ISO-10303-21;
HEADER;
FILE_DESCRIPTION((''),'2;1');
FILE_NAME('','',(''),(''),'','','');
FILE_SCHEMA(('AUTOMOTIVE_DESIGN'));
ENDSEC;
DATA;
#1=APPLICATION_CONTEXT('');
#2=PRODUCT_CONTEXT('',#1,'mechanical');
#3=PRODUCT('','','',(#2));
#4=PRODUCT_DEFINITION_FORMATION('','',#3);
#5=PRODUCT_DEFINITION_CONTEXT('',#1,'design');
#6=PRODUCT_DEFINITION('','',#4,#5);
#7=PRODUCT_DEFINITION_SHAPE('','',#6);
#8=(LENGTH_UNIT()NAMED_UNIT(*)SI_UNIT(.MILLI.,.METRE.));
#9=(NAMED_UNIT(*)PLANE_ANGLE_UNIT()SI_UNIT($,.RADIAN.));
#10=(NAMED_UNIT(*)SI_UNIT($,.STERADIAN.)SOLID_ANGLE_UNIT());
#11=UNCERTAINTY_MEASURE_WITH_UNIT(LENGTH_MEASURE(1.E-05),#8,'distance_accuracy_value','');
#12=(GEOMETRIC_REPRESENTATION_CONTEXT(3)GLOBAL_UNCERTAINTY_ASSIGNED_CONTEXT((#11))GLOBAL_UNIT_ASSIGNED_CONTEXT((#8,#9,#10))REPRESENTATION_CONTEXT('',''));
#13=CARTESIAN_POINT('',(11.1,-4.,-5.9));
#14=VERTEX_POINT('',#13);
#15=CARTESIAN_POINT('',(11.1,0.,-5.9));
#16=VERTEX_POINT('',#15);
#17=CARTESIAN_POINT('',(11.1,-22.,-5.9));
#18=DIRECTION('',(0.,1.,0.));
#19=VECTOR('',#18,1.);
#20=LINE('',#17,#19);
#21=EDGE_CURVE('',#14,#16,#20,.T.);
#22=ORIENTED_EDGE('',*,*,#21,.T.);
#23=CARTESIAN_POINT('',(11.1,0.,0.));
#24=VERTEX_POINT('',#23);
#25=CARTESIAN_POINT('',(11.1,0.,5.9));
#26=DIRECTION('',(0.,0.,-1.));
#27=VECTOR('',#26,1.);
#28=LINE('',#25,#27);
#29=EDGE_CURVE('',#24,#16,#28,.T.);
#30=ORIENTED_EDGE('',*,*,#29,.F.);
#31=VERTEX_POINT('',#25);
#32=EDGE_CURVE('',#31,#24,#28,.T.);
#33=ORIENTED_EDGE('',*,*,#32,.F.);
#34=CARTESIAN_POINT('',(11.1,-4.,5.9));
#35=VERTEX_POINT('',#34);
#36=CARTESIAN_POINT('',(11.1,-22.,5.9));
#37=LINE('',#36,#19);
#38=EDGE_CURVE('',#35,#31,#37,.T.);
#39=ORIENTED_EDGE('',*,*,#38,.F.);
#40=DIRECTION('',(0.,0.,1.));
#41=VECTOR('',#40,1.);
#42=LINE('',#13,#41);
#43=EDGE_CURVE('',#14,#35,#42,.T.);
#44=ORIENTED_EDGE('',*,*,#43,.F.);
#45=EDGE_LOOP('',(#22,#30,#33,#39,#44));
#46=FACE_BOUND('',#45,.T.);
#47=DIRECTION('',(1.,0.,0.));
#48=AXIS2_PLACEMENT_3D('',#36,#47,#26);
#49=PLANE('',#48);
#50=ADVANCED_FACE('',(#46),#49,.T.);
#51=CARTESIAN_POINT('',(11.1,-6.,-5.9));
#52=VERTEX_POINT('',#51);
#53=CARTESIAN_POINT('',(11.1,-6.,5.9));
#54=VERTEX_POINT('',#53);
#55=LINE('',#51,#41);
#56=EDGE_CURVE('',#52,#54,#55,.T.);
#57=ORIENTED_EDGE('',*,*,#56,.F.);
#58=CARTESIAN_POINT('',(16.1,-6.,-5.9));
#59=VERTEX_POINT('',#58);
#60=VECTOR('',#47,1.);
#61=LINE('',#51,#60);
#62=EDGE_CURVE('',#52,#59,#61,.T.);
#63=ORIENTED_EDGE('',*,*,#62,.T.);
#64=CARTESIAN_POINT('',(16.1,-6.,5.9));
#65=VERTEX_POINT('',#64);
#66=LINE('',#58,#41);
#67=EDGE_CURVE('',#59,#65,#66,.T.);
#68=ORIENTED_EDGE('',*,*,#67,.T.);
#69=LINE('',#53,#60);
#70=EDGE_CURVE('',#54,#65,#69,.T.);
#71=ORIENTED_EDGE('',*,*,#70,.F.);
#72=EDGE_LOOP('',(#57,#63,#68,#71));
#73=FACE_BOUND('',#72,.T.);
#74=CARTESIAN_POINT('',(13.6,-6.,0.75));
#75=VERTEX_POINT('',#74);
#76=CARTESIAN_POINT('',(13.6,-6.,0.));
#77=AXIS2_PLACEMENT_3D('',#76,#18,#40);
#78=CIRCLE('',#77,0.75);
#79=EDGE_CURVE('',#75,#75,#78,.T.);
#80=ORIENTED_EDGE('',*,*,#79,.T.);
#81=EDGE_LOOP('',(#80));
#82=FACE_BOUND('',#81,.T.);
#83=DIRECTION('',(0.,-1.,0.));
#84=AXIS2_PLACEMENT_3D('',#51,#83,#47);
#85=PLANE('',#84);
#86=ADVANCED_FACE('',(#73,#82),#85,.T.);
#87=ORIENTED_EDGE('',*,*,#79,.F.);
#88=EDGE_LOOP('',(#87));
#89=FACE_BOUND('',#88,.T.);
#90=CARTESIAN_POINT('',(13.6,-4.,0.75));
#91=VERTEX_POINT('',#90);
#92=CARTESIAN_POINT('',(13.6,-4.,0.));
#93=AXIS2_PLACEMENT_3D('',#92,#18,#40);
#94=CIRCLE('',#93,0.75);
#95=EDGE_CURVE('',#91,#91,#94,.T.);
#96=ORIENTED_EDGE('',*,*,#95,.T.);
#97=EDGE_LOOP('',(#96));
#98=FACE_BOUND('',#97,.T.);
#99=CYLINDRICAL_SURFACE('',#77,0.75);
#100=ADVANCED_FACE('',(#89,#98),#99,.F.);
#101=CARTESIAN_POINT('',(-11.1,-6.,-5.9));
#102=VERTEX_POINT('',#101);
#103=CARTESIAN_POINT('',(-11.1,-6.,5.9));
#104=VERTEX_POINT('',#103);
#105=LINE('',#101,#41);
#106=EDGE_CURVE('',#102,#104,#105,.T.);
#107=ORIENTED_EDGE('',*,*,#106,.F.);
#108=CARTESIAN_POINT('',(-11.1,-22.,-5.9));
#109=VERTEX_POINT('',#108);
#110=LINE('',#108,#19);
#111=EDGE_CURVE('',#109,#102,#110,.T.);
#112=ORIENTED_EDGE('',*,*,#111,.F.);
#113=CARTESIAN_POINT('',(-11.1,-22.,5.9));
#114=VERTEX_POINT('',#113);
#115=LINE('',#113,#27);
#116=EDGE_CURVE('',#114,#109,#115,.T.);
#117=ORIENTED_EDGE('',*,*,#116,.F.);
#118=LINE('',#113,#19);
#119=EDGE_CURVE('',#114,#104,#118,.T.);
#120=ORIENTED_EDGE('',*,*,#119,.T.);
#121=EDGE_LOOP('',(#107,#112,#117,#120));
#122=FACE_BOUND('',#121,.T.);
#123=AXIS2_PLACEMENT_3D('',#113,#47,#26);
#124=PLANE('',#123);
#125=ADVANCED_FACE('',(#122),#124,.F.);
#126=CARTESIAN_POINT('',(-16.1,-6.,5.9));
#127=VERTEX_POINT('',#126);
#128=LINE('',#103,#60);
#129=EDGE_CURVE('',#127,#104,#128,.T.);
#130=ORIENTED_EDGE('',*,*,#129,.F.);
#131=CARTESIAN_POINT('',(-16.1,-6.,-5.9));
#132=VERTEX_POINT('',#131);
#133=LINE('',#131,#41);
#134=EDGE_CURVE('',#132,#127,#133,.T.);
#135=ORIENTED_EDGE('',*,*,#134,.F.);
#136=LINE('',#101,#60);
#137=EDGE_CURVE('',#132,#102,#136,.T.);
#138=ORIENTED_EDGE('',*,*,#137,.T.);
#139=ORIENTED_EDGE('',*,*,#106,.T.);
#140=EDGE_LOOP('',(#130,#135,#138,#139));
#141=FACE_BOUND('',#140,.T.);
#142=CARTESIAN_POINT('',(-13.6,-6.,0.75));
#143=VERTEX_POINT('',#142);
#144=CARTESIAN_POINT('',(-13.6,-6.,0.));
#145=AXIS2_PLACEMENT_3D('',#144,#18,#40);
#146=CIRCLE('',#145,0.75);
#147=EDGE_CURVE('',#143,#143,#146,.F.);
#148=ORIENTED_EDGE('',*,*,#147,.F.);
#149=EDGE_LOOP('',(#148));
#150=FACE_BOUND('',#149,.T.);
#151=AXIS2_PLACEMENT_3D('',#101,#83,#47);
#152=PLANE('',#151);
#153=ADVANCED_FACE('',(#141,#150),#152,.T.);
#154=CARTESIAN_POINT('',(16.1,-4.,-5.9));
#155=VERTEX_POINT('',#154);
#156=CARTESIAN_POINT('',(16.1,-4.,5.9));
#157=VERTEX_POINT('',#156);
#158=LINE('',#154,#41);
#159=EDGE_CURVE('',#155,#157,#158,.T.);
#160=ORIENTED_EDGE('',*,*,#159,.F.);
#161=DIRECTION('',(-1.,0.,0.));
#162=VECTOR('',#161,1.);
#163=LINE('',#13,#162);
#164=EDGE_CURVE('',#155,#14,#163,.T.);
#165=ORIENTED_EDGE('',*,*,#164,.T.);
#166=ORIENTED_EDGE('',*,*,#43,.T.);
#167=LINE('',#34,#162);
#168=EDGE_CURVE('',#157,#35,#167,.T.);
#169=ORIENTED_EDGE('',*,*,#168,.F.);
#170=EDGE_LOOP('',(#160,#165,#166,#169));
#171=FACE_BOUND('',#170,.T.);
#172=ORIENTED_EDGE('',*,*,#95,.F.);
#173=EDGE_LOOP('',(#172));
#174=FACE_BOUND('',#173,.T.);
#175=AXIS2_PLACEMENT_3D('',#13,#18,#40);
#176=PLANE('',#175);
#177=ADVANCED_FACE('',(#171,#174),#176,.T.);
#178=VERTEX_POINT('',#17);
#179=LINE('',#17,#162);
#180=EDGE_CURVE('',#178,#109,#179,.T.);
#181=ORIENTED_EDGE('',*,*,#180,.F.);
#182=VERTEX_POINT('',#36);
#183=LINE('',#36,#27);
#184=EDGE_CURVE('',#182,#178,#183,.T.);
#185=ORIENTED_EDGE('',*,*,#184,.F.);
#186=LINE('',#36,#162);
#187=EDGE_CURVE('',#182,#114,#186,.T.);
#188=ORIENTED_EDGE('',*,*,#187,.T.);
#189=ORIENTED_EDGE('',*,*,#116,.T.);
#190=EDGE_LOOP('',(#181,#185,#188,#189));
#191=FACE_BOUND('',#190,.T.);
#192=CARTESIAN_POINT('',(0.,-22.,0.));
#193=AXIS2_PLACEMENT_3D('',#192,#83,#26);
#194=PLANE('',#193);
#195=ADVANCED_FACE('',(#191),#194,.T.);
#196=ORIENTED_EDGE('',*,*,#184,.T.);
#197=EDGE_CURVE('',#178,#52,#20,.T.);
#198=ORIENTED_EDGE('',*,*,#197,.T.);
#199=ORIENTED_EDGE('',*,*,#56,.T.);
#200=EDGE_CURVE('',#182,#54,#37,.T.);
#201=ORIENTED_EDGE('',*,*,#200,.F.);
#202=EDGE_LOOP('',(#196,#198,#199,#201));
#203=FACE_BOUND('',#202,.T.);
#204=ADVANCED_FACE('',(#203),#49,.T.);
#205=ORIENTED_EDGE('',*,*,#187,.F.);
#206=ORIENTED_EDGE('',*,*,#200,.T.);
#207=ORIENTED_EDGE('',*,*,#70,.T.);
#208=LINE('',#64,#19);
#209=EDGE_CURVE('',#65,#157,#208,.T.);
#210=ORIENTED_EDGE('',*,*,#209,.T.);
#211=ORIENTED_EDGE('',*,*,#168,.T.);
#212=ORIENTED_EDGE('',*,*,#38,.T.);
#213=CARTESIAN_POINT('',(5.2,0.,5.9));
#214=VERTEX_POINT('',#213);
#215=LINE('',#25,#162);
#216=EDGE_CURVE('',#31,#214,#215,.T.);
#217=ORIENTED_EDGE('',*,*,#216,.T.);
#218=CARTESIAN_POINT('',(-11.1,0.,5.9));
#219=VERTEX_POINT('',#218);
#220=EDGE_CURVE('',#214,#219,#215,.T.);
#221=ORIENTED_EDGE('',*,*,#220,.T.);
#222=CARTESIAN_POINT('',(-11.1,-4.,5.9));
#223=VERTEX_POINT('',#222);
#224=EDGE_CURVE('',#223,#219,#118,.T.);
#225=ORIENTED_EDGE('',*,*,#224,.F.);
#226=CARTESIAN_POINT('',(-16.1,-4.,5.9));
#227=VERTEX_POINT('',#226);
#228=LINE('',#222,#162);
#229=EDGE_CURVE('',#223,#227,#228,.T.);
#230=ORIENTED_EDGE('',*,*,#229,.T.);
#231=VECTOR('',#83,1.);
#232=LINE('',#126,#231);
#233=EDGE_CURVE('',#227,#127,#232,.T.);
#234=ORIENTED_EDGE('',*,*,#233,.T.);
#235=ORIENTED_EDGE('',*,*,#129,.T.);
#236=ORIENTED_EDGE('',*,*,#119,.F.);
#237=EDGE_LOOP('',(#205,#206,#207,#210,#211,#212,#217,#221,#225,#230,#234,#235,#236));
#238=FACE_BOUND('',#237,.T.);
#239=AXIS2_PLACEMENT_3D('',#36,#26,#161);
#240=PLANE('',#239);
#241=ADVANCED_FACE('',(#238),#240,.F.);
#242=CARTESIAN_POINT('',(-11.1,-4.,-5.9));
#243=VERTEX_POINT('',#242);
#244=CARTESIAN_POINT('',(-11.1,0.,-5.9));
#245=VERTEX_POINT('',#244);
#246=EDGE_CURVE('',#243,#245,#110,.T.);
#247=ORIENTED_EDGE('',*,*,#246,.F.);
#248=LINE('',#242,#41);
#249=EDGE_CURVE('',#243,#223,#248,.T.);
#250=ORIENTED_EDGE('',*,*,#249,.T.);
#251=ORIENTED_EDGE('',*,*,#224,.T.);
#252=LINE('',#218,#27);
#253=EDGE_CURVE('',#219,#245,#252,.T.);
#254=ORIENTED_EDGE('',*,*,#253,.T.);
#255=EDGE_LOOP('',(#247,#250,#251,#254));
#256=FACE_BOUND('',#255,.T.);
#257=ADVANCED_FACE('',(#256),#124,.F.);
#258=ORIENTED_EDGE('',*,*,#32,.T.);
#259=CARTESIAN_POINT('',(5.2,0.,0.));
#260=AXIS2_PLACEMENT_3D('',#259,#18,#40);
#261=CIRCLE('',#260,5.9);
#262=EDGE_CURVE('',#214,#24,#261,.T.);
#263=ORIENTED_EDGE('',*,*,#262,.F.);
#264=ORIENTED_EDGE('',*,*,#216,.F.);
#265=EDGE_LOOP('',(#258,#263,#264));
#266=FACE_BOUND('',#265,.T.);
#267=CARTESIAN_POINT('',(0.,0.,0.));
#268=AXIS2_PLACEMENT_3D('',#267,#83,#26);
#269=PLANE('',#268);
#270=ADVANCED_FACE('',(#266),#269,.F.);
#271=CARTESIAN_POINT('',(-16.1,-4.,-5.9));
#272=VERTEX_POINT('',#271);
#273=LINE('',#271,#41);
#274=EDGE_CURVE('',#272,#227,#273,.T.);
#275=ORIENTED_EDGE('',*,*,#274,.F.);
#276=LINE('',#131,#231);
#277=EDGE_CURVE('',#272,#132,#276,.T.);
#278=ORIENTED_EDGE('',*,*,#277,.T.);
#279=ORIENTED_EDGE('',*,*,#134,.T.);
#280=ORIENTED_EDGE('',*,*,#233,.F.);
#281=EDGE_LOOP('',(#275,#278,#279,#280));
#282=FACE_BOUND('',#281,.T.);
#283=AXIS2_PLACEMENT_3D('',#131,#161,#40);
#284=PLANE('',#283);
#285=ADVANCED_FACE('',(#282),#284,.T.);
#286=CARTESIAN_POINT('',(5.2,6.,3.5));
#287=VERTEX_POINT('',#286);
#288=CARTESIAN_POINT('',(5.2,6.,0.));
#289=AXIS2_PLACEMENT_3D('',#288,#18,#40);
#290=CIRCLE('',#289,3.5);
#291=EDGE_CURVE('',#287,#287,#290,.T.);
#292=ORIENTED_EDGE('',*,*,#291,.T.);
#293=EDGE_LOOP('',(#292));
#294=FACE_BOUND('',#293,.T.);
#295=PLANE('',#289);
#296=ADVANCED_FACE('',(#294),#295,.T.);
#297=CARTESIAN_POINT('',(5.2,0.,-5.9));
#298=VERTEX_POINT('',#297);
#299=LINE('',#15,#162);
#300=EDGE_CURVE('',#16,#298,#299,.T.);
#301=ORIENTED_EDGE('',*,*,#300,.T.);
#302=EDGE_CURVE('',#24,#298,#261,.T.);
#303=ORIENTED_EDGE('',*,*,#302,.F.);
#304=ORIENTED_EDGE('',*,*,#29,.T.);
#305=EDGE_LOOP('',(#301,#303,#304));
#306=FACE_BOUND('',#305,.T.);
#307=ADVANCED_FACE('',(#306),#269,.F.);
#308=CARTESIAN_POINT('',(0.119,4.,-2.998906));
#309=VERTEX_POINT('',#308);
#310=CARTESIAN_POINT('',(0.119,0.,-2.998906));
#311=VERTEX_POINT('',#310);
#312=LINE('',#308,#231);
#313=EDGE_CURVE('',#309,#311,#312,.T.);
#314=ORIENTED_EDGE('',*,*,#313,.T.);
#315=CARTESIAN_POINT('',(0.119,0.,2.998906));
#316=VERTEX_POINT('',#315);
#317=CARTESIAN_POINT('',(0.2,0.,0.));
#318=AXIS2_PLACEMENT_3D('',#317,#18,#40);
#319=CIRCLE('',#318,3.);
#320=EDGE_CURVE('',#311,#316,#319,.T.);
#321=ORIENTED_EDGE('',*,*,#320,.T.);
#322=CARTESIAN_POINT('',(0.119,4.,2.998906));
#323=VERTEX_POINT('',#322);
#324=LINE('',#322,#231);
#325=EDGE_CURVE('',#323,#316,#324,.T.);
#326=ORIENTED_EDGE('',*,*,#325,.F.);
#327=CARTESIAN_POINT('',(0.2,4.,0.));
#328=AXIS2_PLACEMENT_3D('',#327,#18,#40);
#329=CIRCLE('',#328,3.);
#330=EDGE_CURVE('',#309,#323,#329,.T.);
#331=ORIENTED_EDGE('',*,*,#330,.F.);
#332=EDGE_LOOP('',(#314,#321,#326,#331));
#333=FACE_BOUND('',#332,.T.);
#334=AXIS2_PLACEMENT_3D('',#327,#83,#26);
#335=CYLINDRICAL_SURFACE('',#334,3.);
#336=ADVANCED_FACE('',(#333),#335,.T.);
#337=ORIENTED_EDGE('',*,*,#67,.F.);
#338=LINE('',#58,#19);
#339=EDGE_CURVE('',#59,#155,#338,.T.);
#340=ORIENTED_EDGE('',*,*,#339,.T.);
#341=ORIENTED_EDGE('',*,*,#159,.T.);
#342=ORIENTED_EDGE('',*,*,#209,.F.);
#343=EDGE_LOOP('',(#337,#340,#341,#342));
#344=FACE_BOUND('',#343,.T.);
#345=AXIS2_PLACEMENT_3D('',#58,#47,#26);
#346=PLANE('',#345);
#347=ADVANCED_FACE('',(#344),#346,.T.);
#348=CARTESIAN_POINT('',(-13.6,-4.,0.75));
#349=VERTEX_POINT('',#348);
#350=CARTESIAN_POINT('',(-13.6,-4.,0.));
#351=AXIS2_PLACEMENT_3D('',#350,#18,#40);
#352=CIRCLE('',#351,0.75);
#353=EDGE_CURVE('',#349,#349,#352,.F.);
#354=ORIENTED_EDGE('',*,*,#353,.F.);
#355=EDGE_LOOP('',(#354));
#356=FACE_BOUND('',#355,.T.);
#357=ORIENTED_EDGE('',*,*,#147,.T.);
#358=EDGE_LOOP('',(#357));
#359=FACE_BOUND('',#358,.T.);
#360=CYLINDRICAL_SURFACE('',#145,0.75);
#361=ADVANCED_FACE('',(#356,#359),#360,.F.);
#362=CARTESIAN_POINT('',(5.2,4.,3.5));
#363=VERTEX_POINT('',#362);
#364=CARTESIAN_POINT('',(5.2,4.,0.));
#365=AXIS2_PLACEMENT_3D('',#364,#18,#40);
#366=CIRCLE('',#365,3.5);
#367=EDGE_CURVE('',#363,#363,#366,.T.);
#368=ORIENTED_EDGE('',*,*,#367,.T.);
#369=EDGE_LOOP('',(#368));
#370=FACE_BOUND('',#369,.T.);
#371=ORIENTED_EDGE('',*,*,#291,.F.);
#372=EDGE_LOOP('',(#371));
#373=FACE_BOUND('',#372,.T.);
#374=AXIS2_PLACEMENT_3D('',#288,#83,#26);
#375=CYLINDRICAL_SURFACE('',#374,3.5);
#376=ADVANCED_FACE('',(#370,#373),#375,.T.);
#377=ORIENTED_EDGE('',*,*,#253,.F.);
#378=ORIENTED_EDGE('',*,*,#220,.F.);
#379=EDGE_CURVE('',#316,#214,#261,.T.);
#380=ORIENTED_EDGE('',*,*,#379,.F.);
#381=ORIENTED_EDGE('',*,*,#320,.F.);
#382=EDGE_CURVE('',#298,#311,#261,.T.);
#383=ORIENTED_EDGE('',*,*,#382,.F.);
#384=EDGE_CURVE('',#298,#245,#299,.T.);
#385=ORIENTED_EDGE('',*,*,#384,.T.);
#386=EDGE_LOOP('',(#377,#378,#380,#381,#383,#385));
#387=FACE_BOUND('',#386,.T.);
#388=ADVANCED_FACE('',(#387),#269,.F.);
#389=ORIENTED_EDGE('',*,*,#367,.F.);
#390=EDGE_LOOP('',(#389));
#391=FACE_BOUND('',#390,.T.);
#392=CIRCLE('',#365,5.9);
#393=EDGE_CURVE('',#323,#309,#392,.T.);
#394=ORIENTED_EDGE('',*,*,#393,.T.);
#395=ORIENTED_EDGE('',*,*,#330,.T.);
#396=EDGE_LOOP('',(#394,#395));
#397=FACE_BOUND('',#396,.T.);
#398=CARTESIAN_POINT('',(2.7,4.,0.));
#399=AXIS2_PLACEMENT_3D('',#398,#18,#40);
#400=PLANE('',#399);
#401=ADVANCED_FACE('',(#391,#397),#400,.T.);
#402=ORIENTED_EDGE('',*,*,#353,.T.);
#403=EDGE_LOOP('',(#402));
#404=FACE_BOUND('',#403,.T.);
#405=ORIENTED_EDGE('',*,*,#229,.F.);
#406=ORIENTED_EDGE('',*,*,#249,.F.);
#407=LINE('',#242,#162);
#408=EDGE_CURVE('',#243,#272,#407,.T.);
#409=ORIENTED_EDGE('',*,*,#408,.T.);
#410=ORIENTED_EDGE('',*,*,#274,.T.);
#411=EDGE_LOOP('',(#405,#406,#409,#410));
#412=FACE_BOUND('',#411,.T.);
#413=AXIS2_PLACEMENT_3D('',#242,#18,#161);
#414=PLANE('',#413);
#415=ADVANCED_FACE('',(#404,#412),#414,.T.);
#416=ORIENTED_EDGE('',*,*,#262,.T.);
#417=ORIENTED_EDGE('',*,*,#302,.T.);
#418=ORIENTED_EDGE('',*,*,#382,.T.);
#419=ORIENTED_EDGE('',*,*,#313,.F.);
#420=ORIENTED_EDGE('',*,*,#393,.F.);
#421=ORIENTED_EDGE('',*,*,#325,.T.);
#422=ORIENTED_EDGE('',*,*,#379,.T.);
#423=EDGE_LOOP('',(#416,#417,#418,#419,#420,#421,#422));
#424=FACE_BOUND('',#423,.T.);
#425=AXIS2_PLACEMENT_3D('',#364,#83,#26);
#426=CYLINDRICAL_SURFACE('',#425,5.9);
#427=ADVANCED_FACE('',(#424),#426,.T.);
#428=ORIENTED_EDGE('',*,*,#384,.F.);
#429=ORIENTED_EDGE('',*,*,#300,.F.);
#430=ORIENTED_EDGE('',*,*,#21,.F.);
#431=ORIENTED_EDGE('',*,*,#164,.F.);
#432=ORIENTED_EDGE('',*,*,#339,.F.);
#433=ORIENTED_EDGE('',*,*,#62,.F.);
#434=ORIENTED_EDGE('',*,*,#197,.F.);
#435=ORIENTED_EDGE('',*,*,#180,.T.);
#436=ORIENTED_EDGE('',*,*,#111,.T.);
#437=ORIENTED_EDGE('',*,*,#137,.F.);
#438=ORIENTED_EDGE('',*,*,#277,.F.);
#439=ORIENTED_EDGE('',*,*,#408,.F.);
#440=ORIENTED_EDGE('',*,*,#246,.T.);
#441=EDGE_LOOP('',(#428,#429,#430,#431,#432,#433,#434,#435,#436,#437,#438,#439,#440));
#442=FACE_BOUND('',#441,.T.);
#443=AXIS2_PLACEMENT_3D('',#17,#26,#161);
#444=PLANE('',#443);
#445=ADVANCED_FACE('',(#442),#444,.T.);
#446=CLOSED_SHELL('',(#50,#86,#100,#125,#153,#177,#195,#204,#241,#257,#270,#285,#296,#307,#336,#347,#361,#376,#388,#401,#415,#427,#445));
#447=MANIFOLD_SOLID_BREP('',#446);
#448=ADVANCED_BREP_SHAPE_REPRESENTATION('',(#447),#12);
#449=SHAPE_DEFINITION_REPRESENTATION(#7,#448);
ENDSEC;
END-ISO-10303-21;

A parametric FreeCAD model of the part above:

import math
import FreeCAD as App
import Part
import Sketcher
from FreeCAD import Vector
Q = App.Units.Quantity


def add_polygon(sketch, points):
    """Adds a closed chain of lines whose ends are joined by coincident constraints."""
    first, n = sketch.GeometryCount, len(points)
    for a, b in zip(points, points[1:] + points[:1]):
        sketch.addGeometry(Part.LineSegment(App.Vector(*a, 0), App.Vector(*b, 0)), False)
    for i in range(n):
        sketch.addConstraint(Sketcher.Constraint("Coincident", first + i, 2, first + (i + 1) % n, 1))

doc = App.newDocument("Part")
body = doc.addObject("PartDesign::Body", "Body")

# Sketch on XZ plane
sketch1 = doc.addObject("Sketcher::SketchObject", "Sketch")
body.addObject(sketch1)
sketch1.AttachmentSupport = (doc.XZ_Plane, [""])
sketch1.MapMode = "FlatFace"
add_polygon(sketch1, [(-11, -6), (-11, 6), (11, 6), (11, -6)])  # lines 0-3
sketch1.addConstraint(Sketcher.Constraint("Vertical", 0))
sketch1.addConstraint(Sketcher.Constraint("Horizontal", 1))
sketch1.addConstraint(Sketcher.Constraint("Vertical", 2))
sketch1.addConstraint(Sketcher.Constraint("Horizontal", 3))
sketch1.addConstraint(Sketcher.Constraint("Symmetric", 0, 2, 2, 2, -1, 1))
sketch1.addConstraint(Sketcher.Constraint("DistanceX", 1, 1, 1, 2, Q("22.2 mm")))
sketch1.addConstraint(Sketcher.Constraint("DistanceY", 0, 1, 0, 2, Q("11.8 mm")))
pad1 = doc.addObject("PartDesign::Pad", "Pad")
body.addObject(pad1)
pad1.Profile = sketch1
pad1.Length = 22

# Sketch on XY plane
sketch2 = doc.addObject("Sketcher::SketchObject", "Sketch001")
body.addObject(sketch2)
sketch2.AttachmentSupport = (doc.XY_Plane, [""])
sketch2.MapMode = "FlatFace"
sketch2.AttachmentOffset = App.Placement(Vector(0, 0, 5.9), App.Rotation())
add_polygon(sketch2, [(11.1, -4), (11.1, -6), (16.1, -6), (16.1, -4)])  # lines 0-3
add_polygon(sketch2, [(-16.1, -4), (-16.1, -6), (-11.1, -6), (-11.1, -4)])  # lines 4-7
sketch2.addConstraint(Sketcher.Constraint("Vertical", 0))
sketch2.addConstraint(Sketcher.Constraint("Horizontal", 1))
sketch2.addConstraint(Sketcher.Constraint("Vertical", 2))
sketch2.addConstraint(Sketcher.Constraint("Horizontal", 3))
sketch2.addConstraint(Sketcher.Constraint("Vertical", 4))
sketch2.addConstraint(Sketcher.Constraint("Horizontal", 5))
sketch2.addConstraint(Sketcher.Constraint("Vertical", 6))
sketch2.addConstraint(Sketcher.Constraint("Horizontal", 7))
sketch2.addConstraint(Sketcher.Constraint("Symmetric", 1, 2, 4, 2, -2))
sketch2.addConstraint(Sketcher.Constraint("Symmetric", 3, 2, 6, 2, -2))
sketch2.addConstraint(Sketcher.Constraint("DistanceX", 1, 1, 1, 2, Q("5 mm")))
sketch2.addConstraint(Sketcher.Constraint("DistanceY", 0, 2, 0, 1, Q("2 mm")))
sketch2.addConstraint(Sketcher.Constraint("DistanceY", 0, 2, -1, 1, Q("6 mm")))
sketch2.addConstraint(Sketcher.Constraint("DistanceX", -1, 1, 0, 2, Q("11.1 mm")))
pad2 = doc.addObject("PartDesign::Pad", "Pad001")
body.addObject(pad2)
pad2.Profile = sketch2
pad2.Length = 11.8
pad2.Reversed = True

# Sketch on XZ plane
sketch3 = doc.addObject("Sketcher::SketchObject", "Sketch002")
body.addObject(sketch3)
sketch3.AttachmentSupport = (doc.XZ_Plane, [""])
sketch3.MapMode = "FlatFace"
sketch3.addGeometry(Part.ArcOfCircle(Part.Circle(Vector(5.2, 0, 0), Vector(0, 0, 1), 5.9), math.radians(-149), math.radians(149)), False)
sketch3.addGeometry(Part.ArcOfCircle(Part.Circle(Vector(0.2, 0, 0), Vector(0, 0, 1), 3), math.radians(92), math.radians(268)), False)
sketch3.addConstraint(Sketcher.Constraint("Coincident", 0, 1, 1, 2))
sketch3.addConstraint(Sketcher.Constraint("Coincident", 1, 1, 0, 2))
sketch3.addConstraint(Sketcher.Constraint("Symmetric", 0, 1, 1, 1, -1))
sketch3.addConstraint(Sketcher.Constraint("Radius", 1, Q("3 mm")))
sketch3.addConstraint(Sketcher.Constraint("Radius", 0, Q("5.9 mm")))
sketch3.addConstraint(Sketcher.Constraint("DistanceX", 1, 3, 0, 3, Q("5 mm")))
sketch3.addConstraint(Sketcher.Constraint("DistanceX", -1, 1, 0, 3, Q("5.2 mm")))
pad3 = doc.addObject("PartDesign::Pad", "Pad002")
body.addObject(pad3)
pad3.Profile = sketch3
pad3.Length = 4
pad3.Reversed = True

# Sketch on XZ plane
sketch4 = doc.addObject("Sketcher::SketchObject", "Sketch003")
body.addObject(sketch4)
sketch4.AttachmentSupport = (doc.XZ_Plane, [""])
sketch4.MapMode = "FlatFace"
sketch4.AttachmentOffset = App.Placement(Vector(0, 0, -4), App.Rotation())
sketch4.addGeometry(Part.Circle(Vector(5.2, 0, 0), Vector(0, 0, 1), 3.5), False)
sketch4.addConstraint(Sketcher.Constraint("PointOnObject", 0, 3, -1))
sketch4.addConstraint(Sketcher.Constraint("Diameter", 0, Q("7 mm")))
sketch4.addConstraint(Sketcher.Constraint("DistanceX", -1, 1, 0, 3, Q("5.2 mm")))
pad4 = doc.addObject("PartDesign::Pad", "Pad003")
body.addObject(pad4)
pad4.Profile = sketch4
pad4.Length = 2
pad4.Reversed = True

# Sketch on XZ plane
sketch5 = doc.addObject("Sketcher::SketchObject", "Sketch004")
body.addObject(sketch5)
sketch5.AttachmentSupport = (doc.XZ_Plane, [""])
sketch5.MapMode = "FlatFace"
sketch5.AttachmentOffset = App.Placement(Vector(0, 0, 4), App.Rotation())
sketch5.addGeometry(Part.Circle(Vector(-13.6, 0, 0), Vector(0, 0, 1), 0.8), False)
sketch5.addGeometry(Part.Circle(Vector(13.6, 0, 0), Vector(0, 0, 1), 0.8), False)
sketch5.addConstraint(Sketcher.Constraint("Equal", 0, 1))
sketch5.addConstraint(Sketcher.Constraint("Symmetric", 0, 3, 1, 3, -1, 1))
sketch5.addConstraint(Sketcher.Constraint("PointOnObject", 0, 3, -1))
sketch5.addConstraint(Sketcher.Constraint("Diameter", 0, Q("1.5 mm")))
sketch5.addConstraint(Sketcher.Constraint("DistanceX", 0, 3, -1, 1, Q("13.6 mm")))
pocket1 = doc.addObject("PartDesign::Pocket", "Pocket")
body.addObject(pocket1)
pocket1.Profile = sketch5
pocket1.Length = 2
pocket1.Reversed = True

doc.recompute()
